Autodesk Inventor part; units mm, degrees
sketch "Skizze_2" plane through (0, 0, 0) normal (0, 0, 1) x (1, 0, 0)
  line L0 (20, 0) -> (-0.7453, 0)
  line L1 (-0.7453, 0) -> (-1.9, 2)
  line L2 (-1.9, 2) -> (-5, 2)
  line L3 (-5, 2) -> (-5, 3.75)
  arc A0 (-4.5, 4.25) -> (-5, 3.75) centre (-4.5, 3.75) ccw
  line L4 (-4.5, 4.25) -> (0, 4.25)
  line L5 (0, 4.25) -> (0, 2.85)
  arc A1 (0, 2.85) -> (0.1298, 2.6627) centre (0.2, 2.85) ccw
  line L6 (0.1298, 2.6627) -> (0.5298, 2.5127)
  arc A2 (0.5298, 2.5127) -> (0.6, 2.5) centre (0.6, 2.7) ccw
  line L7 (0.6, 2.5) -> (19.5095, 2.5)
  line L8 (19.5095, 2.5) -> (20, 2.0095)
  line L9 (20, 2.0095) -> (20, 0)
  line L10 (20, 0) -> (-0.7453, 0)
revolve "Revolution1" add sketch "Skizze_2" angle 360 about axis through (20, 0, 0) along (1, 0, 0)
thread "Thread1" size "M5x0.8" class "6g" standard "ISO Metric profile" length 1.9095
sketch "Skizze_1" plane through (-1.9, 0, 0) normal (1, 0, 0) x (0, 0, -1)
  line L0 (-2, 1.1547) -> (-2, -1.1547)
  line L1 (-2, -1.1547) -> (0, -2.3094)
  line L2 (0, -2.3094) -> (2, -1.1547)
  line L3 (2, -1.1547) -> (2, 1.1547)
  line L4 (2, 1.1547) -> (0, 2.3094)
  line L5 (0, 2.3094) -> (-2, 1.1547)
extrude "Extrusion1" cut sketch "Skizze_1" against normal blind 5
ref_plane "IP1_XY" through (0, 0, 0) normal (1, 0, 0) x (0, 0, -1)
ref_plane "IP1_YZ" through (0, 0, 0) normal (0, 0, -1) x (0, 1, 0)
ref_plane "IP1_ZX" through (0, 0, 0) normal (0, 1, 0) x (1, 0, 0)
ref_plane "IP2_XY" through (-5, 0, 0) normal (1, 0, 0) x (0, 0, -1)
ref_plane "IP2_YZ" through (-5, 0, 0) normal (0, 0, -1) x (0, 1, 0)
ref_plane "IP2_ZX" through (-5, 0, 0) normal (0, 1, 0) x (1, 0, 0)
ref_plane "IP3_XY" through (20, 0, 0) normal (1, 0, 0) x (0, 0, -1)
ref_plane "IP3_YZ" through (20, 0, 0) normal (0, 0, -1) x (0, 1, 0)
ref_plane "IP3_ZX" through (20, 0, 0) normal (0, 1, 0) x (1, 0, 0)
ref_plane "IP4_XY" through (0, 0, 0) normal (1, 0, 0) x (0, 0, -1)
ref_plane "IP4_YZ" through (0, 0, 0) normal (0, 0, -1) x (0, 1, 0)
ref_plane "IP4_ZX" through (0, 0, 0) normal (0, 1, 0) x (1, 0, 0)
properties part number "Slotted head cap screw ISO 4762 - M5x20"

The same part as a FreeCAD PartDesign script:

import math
import FreeCAD as App
import Part
import Sketcher
from FreeCAD import Vector
Q = App.Units.Quantity


def add_polygon(sketch, points):
    """Adds a closed chain of lines whose ends are joined by coincident constraints."""
    first, n = sketch.GeometryCount, len(points)
    for a, b in zip(points, points[1:] + points[:1]):
        sketch.addGeometry(Part.LineSegment(App.Vector(*a, 0), App.Vector(*b, 0)), False)
    for i in range(n):
        sketch.addConstraint(Sketcher.Constraint("Coincident", first + i, 2, first + (i + 1) % n, 1))

doc = App.newDocument("Part")
body = doc.addObject("PartDesign::Body", "Body")

sketch1 = body.newObject("Sketcher::SketchObject", "Sketch")
sketch1.AttachmentSupport = (doc.getObject("XY_Plane"), [""])
sketch1.MapMode = "FlatFace"
sketch1.addGeometry(Part.LineSegment(Vector(-0.75, 0, 0), Vector(20, 0, 0)), False)
sketch1.addGeometry(Part.LineSegment(Vector(20, 0, 0), Vector(20, 2.01, 0)), False)
sketch1.addGeometry(Part.LineSegment(Vector(20, 2.01, 0), Vector(19.51, 2.5, 0)), False)
sketch1.addGeometry(Part.LineSegment(Vector(19.51, 2.5, 0), Vector(0.6, 2.5, 0)), False)
sketch1.addGeometry(Part.ArcOfCircle(Part.Circle(Vector(0.6, 2.7, 0), Vector(0, 0, 1), 0.2), math.radians(-111), math.radians(-90)), False)
sketch1.addGeometry(Part.LineSegment(Vector(0.53, 2.51, 0), Vector(0.13, 2.66, 0)), False)
sketch1.addGeometry(Part.ArcOfCircle(Part.Circle(Vector(0.2, 2.85, 0), Vector(0, 0, 1), 0.2), math.radians(180), math.radians(249)), False)
sketch1.addGeometry(Part.LineSegment(Vector(0, 2.85, 0), Vector(0, 4.25, 0)), False)
sketch1.addGeometry(Part.LineSegment(Vector(0, 4.25, 0), Vector(-4.5, 4.25, 0)), False)
sketch1.addGeometry(Part.ArcOfCircle(Part.Circle(Vector(-4.5, 3.75, 0), Vector(0, 0, 1), 0.5), math.radians(90), math.radians(180)), False)
sketch1.addGeometry(Part.LineSegment(Vector(-5, 3.75, 0), Vector(-5, 2, 0)), False)
sketch1.addGeometry(Part.LineSegment(Vector(-5, 2, 0), Vector(-1.9, 2, 0)), False)
sketch1.addGeometry(Part.LineSegment(Vector(-1.9, 2, 0), Vector(-0.75, 0, 0)), False)
sketch1.addConstraint(Sketcher.Constraint("Coincident", 0, 2, 1, 1))
sketch1.addConstraint(Sketcher.Constraint("Coincident", 1, 2, 2, 1))
sketch1.addConstraint(Sketcher.Constraint("Coincident", 2, 2, 3, 1))
sketch1.addConstraint(Sketcher.Constraint("Tangent", 3, 2, 4, 2))
sketch1.addConstraint(Sketcher.Constraint("Tangent", 4, 1, 5, 1))
sketch1.addConstraint(Sketcher.Constraint("Tangent", 5, 2, 6, 2))
sketch1.addConstraint(Sketcher.Constraint("Tangent", 6, 1, 7, 1))
sketch1.addConstraint(Sketcher.Constraint("Coincident", 7, 2, 8, 1))
sketch1.addConstraint(Sketcher.Constraint("Tangent", 8, 2, 9, 1))
sketch1.addConstraint(Sketcher.Constraint("Tangent", 9, 2, 10, 1))
sketch1.addConstraint(Sketcher.Constraint("Coincident", 10, 2, 11, 1))
sketch1.addConstraint(Sketcher.Constraint("Coincident", 11, 2, 12, 1))
sketch1.addConstraint(Sketcher.Constraint("Coincident", 12, 2, 0, 1))
sketch1.addConstraint(Sketcher.Constraint("Horizontal", 0))
sketch1.addConstraint(Sketcher.Constraint("Vertical", 1))
sketch1.addConstraint(Sketcher.Constraint("Horizontal", 3))
sketch1.addConstraint(Sketcher.Constraint("Vertical", 7))
sketch1.addConstraint(Sketcher.Constraint("Horizontal", 8))
sketch1.addConstraint(Sketcher.Constraint("Vertical", 10))
sketch1.addConstraint(Sketcher.Constraint("Horizontal", 11))
sketch1.addConstraint(Sketcher.Constraint("Equal", 4, 6))
sketch1.addConstraint(Sketcher.Constraint("PointOnObject", 0, 2, -1))
sketch1.addConstraint(Sketcher.Constraint("PointOnObject", 6, 1, -2))
sketch1.addConstraint(Sketcher.Constraint("Radius", 4, Q("0.2 mm")))
sketch1.addConstraint(Sketcher.Constraint("Radius", 9, Q("0.5 mm")))
sketch1.addConstraint(Sketcher.Constraint("Angle", 2, Q("135 deg")))
sketch1.addConstraint(Sketcher.Constraint("Angle", 12, Q("-60 deg")))
sketch1.addConstraint(Sketcher.Constraint("DistanceX", 8, 2, 8, 1, Q("4.5 mm")))
sketch1.addConstraint(Sketcher.Constraint("DistanceX", 11, 1, 11, 2, Q("3.1 mm")))
sketch1.addConstraint(Sketcher.Constraint("DistanceY", 7, 1, 7, 2, Q("1.4 mm")))
sketch1.addConstraint(Sketcher.Constraint("DistanceX", -1, 1, 0, 2, Q("20 mm")))
sketch1.addConstraint(Sketcher.Constraint("DistanceY", -1, 1, 10, 2, Q("2 mm")))
sketch1.addConstraint(Sketcher.Constraint("DistanceY", 10, 2, 10, 1, Q("1.75 mm")))
sketch1.addConstraint(Sketcher.Constraint("DistanceX", -1, 1, 4, 3, Q("0.6 mm")))
sketch1.addConstraint(Sketcher.Constraint("DistanceY", -1, 1, 4, 3, Q("2.7 mm")))
sketch1.addConstraint(Sketcher.Constraint("DistanceX", 3, 2, 3, 1, Q("18.9095 mm")))
revolution = body.newObject("PartDesign::Revolution", "Revolution")
revolution.Profile = sketch1
revolution.ReferenceAxis = (sketch1, ["H_Axis"])
revolution.Angle = 360

sketch2 = body.newObject("Sketcher::SketchObject", "Sketch001")
sketch2.AttachmentSupport = (doc.getObject("YZ_Plane"), [""])
sketch2.MapMode = "FlatFace"
sketch2.AttachmentOffset = App.Placement(Vector(0, 0, -1.9), App.Rotation())
add_polygon(sketch2, [(2.3, 0), (1.2, 2), (-1.2, 2), (-2.3, 0), (-1.2, -2), (1.2, -2)])
sketch2.addConstraint(Sketcher.Constraint("Horizontal", 1))
sketch2.addConstraint(Sketcher.Constraint("Horizontal", 4))
sketch2.addConstraint(Sketcher.Constraint("Symmetric", 0, 2, 3, 2, -1, 1))
sketch2.addConstraint(Sketcher.Constraint("Symmetric", 2, 2, 5, 2, -1, 1))
sketch2.addConstraint(Sketcher.Constraint("PointOnObject", 2, 2, -1))
sketch2.addConstraint(Sketcher.Constraint("Parallel", 2, 5))
sketch2.addConstraint(Sketcher.Constraint("Vertical", 1, 2, 3, 2))
sketch2.addConstraint(Sketcher.Constraint("Angle", 0, Q("120 deg")))
sketch2.addConstraint(Sketcher.Constraint("DistanceY", -1, 1, 0, 2, Q("2 mm")))
sketch2.addConstraint(Sketcher.Constraint("DistanceX", 1, 2, 1, 1, Q("2.3094 mm")))
pocket1 = body.newObject("PartDesign::Pocket", "Pocket")
pocket1.Profile = sketch2
pocket1.Length = 5

doc.recompute()
